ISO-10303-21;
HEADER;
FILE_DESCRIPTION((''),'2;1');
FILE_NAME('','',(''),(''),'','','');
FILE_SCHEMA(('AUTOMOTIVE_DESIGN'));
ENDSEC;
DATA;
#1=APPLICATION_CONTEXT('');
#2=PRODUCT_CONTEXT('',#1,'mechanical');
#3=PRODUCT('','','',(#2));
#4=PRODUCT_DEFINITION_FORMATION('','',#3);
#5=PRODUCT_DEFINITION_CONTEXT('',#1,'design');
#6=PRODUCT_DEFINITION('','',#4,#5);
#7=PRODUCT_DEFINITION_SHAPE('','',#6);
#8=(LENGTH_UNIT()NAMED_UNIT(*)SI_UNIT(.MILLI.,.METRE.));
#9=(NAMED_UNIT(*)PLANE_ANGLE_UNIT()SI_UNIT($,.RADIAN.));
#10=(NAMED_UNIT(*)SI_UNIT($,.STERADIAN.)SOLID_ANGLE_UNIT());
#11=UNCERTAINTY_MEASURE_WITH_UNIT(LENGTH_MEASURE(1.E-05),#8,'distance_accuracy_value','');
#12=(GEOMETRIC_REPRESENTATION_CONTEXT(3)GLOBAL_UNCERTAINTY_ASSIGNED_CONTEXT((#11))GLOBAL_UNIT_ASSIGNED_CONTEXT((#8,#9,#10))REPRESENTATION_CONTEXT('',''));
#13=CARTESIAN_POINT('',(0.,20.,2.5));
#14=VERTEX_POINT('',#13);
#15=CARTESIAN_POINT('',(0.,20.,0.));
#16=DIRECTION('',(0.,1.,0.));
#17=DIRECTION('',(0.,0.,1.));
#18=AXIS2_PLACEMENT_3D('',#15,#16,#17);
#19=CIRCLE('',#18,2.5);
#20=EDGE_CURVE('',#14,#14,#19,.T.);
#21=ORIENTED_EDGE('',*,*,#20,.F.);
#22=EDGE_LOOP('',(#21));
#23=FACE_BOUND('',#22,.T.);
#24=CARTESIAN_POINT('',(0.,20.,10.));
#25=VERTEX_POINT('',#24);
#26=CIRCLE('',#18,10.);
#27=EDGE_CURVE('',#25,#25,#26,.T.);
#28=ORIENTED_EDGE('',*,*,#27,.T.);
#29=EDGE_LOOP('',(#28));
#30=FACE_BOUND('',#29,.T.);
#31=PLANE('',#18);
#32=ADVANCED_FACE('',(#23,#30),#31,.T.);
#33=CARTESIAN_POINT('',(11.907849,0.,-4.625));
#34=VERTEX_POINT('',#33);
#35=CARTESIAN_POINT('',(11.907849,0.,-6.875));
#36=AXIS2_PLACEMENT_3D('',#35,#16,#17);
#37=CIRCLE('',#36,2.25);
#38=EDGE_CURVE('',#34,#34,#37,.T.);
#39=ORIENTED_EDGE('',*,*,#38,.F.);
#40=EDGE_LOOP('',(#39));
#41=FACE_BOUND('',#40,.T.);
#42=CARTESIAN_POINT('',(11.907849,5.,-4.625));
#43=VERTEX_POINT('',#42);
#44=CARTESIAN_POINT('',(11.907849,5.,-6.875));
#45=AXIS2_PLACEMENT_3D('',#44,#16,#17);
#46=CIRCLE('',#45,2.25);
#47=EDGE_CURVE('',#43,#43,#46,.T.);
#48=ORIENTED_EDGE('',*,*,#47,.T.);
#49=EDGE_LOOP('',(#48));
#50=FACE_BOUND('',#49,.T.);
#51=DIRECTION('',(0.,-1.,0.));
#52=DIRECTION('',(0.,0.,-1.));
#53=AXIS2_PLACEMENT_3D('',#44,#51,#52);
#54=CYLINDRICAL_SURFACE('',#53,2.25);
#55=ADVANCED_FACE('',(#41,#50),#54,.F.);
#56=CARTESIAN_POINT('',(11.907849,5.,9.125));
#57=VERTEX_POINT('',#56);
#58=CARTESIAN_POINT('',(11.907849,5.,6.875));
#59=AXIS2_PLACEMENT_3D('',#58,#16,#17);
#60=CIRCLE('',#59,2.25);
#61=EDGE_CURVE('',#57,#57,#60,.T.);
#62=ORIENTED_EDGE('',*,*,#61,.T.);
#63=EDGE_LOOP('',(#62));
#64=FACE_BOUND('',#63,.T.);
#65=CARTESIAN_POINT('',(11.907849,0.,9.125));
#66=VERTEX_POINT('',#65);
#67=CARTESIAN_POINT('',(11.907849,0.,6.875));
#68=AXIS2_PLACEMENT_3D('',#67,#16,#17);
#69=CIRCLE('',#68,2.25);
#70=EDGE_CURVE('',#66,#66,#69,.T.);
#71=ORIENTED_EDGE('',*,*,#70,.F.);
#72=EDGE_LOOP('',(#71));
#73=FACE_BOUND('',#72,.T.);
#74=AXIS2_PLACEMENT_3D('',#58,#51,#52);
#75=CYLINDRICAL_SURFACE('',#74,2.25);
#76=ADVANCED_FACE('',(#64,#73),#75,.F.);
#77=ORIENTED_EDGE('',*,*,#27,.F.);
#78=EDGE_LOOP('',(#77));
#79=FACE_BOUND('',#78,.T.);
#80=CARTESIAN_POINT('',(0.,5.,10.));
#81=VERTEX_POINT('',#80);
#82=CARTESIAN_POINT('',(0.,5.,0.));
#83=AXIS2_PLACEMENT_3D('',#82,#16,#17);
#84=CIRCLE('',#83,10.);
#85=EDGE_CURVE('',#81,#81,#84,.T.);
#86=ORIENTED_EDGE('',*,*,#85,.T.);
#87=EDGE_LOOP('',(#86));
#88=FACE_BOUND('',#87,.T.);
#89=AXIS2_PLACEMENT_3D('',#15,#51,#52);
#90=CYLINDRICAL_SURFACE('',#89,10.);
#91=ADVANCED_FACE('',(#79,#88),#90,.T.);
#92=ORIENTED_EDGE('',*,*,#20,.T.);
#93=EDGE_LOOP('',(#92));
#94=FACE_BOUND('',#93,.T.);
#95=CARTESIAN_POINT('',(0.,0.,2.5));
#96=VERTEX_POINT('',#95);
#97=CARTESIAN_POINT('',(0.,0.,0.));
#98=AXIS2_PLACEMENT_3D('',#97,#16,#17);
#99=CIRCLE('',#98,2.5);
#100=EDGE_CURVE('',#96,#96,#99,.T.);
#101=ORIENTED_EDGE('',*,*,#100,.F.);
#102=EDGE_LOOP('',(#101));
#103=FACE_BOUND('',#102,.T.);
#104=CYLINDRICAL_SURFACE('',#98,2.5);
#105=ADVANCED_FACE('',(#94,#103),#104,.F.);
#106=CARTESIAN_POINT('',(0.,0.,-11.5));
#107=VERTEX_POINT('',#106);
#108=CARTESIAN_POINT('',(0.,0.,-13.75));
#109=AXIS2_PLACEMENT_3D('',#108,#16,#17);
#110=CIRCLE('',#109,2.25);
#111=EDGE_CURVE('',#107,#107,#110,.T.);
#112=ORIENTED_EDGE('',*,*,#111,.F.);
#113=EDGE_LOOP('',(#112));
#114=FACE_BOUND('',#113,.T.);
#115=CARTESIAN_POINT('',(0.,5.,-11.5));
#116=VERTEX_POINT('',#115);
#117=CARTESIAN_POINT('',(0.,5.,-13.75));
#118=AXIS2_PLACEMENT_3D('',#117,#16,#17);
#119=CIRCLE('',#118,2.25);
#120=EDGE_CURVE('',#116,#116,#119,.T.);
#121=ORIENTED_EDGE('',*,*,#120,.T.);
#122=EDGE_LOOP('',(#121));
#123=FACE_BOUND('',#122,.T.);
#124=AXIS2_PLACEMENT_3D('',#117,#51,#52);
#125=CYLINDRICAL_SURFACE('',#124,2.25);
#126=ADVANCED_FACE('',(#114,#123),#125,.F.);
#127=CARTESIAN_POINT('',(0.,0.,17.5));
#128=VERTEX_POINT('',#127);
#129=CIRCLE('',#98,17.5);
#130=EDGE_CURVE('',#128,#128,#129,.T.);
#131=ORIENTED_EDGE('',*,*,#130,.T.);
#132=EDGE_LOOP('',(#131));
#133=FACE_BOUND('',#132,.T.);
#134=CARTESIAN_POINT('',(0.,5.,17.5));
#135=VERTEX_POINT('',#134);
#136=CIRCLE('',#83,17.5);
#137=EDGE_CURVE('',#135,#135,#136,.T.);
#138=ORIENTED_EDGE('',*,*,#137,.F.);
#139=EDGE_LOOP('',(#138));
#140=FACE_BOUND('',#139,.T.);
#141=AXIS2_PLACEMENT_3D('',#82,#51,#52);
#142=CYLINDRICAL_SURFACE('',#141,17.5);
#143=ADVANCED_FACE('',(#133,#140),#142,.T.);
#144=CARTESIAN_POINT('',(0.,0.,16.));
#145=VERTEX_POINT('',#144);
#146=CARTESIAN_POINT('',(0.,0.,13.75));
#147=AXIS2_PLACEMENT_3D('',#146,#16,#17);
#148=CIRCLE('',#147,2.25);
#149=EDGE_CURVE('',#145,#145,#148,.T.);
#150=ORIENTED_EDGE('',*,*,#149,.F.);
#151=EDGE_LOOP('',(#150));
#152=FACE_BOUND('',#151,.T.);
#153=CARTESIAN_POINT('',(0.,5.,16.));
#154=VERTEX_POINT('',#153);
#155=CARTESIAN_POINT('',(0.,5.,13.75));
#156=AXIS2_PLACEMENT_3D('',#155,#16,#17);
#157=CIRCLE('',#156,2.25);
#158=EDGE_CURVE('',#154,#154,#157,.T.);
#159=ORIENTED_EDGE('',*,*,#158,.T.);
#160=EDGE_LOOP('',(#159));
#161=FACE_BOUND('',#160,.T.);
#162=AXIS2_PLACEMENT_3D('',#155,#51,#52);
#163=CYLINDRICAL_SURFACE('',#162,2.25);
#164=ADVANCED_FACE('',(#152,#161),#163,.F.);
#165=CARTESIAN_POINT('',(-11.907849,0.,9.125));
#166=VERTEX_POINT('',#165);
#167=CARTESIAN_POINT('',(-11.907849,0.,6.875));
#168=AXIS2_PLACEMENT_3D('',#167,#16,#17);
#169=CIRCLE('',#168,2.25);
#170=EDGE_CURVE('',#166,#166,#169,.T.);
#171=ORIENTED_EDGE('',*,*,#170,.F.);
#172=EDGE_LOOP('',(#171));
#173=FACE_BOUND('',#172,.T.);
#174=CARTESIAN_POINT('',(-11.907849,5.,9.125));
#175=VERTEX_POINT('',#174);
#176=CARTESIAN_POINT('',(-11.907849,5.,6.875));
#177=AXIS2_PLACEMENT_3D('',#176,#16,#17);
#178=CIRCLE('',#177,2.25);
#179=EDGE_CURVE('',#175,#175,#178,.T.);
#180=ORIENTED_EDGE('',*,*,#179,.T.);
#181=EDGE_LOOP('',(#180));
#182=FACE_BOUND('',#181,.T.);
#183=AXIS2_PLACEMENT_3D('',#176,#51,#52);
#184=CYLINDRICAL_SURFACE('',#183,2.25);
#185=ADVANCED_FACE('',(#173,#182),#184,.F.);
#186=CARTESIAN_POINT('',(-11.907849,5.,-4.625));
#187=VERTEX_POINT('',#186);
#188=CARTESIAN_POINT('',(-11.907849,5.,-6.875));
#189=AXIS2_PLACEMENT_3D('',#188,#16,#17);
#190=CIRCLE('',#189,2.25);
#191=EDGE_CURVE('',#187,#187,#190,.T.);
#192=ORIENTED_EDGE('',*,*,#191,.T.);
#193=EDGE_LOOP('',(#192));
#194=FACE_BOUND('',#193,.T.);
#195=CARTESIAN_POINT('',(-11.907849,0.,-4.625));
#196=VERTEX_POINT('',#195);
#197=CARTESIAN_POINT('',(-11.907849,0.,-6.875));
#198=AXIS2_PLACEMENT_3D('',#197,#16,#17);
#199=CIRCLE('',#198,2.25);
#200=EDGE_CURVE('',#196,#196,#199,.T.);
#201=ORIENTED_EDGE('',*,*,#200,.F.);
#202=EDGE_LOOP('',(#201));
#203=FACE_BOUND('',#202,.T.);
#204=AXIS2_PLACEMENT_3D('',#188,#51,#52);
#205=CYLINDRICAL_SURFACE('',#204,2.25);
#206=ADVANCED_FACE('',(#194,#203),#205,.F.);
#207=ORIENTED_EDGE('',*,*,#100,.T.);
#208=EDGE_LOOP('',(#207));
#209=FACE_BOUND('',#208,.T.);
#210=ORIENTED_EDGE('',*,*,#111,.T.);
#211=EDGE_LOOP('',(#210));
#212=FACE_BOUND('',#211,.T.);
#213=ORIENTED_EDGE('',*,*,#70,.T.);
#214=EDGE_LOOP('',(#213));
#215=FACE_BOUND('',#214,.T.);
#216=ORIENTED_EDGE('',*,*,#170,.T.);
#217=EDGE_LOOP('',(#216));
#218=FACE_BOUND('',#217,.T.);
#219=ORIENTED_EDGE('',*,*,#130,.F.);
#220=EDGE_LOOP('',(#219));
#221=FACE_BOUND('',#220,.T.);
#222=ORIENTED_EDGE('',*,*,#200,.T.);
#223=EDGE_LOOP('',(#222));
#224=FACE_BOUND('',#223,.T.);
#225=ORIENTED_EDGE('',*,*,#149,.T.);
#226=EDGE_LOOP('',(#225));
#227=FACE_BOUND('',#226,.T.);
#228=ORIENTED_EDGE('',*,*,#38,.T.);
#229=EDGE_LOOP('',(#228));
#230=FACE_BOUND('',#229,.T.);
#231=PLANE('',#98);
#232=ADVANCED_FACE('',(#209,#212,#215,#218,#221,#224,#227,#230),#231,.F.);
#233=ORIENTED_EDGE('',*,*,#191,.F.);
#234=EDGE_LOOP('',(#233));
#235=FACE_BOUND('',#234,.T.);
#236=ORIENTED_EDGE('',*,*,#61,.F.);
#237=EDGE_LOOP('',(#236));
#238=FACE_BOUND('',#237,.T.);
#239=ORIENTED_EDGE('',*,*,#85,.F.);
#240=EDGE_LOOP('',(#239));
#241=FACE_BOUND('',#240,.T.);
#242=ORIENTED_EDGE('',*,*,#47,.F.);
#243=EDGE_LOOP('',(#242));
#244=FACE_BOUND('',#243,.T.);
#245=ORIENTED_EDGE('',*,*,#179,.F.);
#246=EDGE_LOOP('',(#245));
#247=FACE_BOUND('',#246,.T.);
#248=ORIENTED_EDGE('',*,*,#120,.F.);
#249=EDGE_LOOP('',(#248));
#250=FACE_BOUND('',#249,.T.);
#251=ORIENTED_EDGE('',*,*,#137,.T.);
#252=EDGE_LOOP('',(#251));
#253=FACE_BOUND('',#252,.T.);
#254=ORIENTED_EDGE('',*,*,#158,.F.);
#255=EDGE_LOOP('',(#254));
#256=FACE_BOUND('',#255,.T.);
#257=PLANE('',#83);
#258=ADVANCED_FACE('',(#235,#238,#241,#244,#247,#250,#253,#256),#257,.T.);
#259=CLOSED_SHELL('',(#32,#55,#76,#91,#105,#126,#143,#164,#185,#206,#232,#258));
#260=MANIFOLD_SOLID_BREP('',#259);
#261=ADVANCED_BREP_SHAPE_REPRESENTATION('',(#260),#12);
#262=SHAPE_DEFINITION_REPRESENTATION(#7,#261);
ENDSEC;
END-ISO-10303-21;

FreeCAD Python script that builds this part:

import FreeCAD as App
import Part
import Sketcher
Q = App.Units.Quantity

doc = App.newDocument("Part")
params = doc.addObject("Spreadsheet::Sheet", "Params")
for row, (alias, value) in enumerate([
    ("sketch1_diameter", "35 mm"),
    ("sketch1_diameter2", "4.5 mm"),
    ("pad1_length", "5 mm"),
    ("sketch2_diameter", "20 mm"),
    ("pad2_length", "15 mm"),
    ("sketch3_diameter", "5 mm"),
], start=1):
    params.set(f"A{row}", alias)
    params.set(f"B{row}", "=" + value)
    params.setAlias(f"B{row}", alias)

body = doc.addObject("PartDesign::Body", "Body")

sketch1 = body.newObject("Sketcher::SketchObject", "Sketch")
sketch1.AttachmentSupport = (doc.getObject("XZ_Plane"), [""])
sketch1.MapMode = "FlatFace"
sketch1.addGeometry([
    Part.Circle(App.Vector(0, 0, 0), App.Vector(0, 0, 1), 17.5),
    Part.Circle(App.Vector(-11.9, -6.9, 0), App.Vector(0, 0, 1), 2.2),
    Part.Circle(App.Vector(0, -13.8, 0), App.Vector(0, 0, 1), 2.2),
    Part.Circle(App.Vector(-11.9, 6.9, 0), App.Vector(0, 0, 1), 2.2),
    Part.Circle(App.Vector(11.9, -6.9, 0), App.Vector(0, 0, 1), 2.2),
    Part.Circle(App.Vector(0, 13.8, 0), App.Vector(0, 0, 1), 2.2),
    Part.Circle(App.Vector(11.9, 6.9, 0), App.Vector(0, 0, 1), 2.2),
], False)
sketch1.addConstraint([
    Sketcher.Constraint("Coincident", 0, 3, -1, 1),
    Sketcher.Constraint("Equal", 1, 2),
    Sketcher.Constraint("Equal", 2, 3),
    Sketcher.Constraint("Equal", 3, 4),
    Sketcher.Constraint("Equal", 4, 5),
    Sketcher.Constraint("Equal", 5, 6),
    Sketcher.Constraint("Symmetric", 3, 3, 4, 3, -1, 1),
    Sketcher.Constraint("Symmetric", 2, 3, 5, 3, -1, 1),
    Sketcher.Constraint("Symmetric", 1, 3, 6, 3, -1, 1),
    Sketcher.Constraint("Symmetric", 1, 3, 4, 3, -2),
    Sketcher.Constraint("PointOnObject", 2, 3, -2),
    Sketcher.Constraint("Diameter", 0, Q("35 mm")),
    Sketcher.Constraint("Diameter", 1, Q("4.5 mm")),
    Sketcher.Constraint("DistanceY", 2, 3, 5, 3, Q("27.5 mm")),
    Sketcher.Constraint("DistanceY", 1, 3, 3, 3, Q("13.75 mm")),
    Sketcher.Constraint("DistanceX", 1, 3, 4, 3, Q("23.815699 mm")),
])
sketch1.setExpression("Constraints[11]", "Params.sketch1_diameter")
sketch1.setExpression("Constraints[12]", "Params.sketch1_diameter2")
pad1 = body.newObject("PartDesign::Pad", "Pad")
pad1.Profile = sketch1
pad1.setExpression("Length", "Params.pad1_length")
pad1.Reversed = True

sketch2 = body.newObject("Sketcher::SketchObject", "Sketch001")
sketch2.AttachmentSupport = (doc.getObject("XZ_Plane"), [""])
sketch2.MapMode = "FlatFace"
sketch2.AttachmentOffset = App.Placement(App.Vector(0, 0, -5), App.Rotation())
sketch2.addGeometry(Part.Circle(App.Vector(0, 0, 0), App.Vector(0, 0, 1), 10), False)
sketch2.addConstraint([
    Sketcher.Constraint("Coincident", 0, 3, -1, 1),
    Sketcher.Constraint("Diameter", 0, Q("20 mm")),
])
sketch2.setExpression("Constraints[1]", "Params.sketch2_diameter")
pad2 = body.newObject("PartDesign::Pad", "Pad001")
pad2.Profile = sketch2
pad2.setExpression("Length", "Params.pad2_length")
pad2.Reversed = True

sketch3 = body.newObject("Sketcher::SketchObject", "Sketch002")
sketch3.AttachmentSupport = (doc.getObject("XZ_Plane"), [""])
sketch3.MapMode = "FlatFace"
sketch3.AttachmentOffset = App.Placement(App.Vector(0, 0, -20), App.Rotation())
sketch3.addGeometry(Part.Circle(App.Vector(0, 0, 0), App.Vector(0, 0, 1), 2.5), False)
sketch3.addConstraint([
    Sketcher.Constraint("Coincident", 0, 3, -1, 1),
    Sketcher.Constraint("Diameter", 0, Q("5 mm")),
])
sketch3.setExpression("Constraints[1]", "Params.sketch3_diameter")
pocket1 = body.newObject("PartDesign::Pocket", "Pocket")
pocket1.Profile = sketch3
pocket1.Type = "ThroughAll"
pocket1.Reversed = True

doc.recompute()
